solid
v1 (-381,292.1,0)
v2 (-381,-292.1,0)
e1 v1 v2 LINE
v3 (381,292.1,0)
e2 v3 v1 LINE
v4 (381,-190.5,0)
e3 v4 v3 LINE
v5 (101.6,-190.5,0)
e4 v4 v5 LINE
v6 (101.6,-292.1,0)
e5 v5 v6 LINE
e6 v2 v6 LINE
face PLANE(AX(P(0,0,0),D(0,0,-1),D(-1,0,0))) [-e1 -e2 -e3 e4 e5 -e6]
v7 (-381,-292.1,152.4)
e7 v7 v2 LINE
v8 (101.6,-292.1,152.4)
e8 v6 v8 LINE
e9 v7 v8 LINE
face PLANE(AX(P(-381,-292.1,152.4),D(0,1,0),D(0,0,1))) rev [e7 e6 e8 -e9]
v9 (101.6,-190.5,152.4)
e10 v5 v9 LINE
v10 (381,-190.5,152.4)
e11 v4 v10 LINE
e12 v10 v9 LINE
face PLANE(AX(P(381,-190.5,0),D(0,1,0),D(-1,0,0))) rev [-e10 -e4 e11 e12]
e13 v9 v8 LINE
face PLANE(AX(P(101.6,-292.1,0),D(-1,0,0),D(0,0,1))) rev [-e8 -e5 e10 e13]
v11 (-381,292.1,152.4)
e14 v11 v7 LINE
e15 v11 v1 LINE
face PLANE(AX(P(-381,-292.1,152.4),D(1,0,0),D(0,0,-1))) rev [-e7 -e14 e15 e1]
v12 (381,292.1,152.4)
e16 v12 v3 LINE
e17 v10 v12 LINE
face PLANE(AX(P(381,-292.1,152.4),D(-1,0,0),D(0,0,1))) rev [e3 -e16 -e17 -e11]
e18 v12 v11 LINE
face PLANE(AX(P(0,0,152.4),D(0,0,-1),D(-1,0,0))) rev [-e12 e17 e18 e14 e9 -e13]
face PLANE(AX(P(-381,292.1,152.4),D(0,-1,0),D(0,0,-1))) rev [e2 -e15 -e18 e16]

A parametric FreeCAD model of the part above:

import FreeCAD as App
import Part
import Sketcher

V = App.Vector
Q = App.Units.Quantity


def add_polygon(sketch, points):
    """Adds a closed chain of lines whose ends are joined by coincident constraints."""
    first, n = sketch.GeometryCount, len(points)
    for a, b in zip(points, points[1:] + points[:1]):
        sketch.addGeometry(Part.LineSegment(App.Vector(*a, 0), App.Vector(*b, 0)), False)
    for i in range(n):
        sketch.addConstraint(Sketcher.Constraint("Coincident", first + i, 2, first + (i + 1) % n, 1))

doc = App.newDocument("Part")
body = doc.addObject("PartDesign::Body", "Body")

sketch1 = body.newObject("Sketcher::SketchObject", "Sketch")
sketch1.AttachmentSupport = (doc.getObject("XY_Plane"), [""])
sketch1.MapMode = "FlatFace"
add_polygon(sketch1, [(-381, 292.1), (-381, -292.1), (381, -292.1), (381, 292.1)])
sketch1.addConstraint([
    Sketcher.Constraint("Vertical", 0),
    Sketcher.Constraint("Horizontal", 1),
    Sketcher.Constraint("Vertical", 2),
    Sketcher.Constraint("Horizontal", 3),
    Sketcher.Constraint("Symmetric", 0, 2, 2, 2, -1, 1),
    Sketcher.Constraint("DistanceX", 1, 1, 1, 2, Q("30 in")),
    Sketcher.Constraint("DistanceY", 0, 2, 0, 1, Q("23 in")),
])
pad1 = body.newObject("PartDesign::Pad", "Pad")
pad1.Profile = sketch1
pad1.Length = Q("6 in")

sketch2 = body.newObject("Sketcher::SketchObject", "Sketch001")
sketch2.AttachmentSupport = (doc.getObject("XY_Plane"), [""])
sketch2.MapMode = "FlatFace"
sketch2.AttachmentOffset = App.Placement(V(0, 0, 6 * 25.4), App.Rotation())
add_polygon(sketch2, [(101.6, -190.5), (101.6, -292.1), (381, -292.1), (381, -190.5)])
sketch2.addConstraint([
    Sketcher.Constraint("Vertical", 0),
    Sketcher.Constraint("Horizontal", 1),
    Sketcher.Constraint("Vertical", 2),
    Sketcher.Constraint("Horizontal", 3),
    Sketcher.Constraint("DistanceX", 1, 1, 1, 2, Q("11 in")),
    Sketcher.Constraint("DistanceY", 0, 2, 0, 1, Q("4 in")),
    Sketcher.Constraint("DistanceX", -1, 1, 0, 2, Q("4 in")),
    Sketcher.Constraint("DistanceY", 0, 2, -1, 1, Q("11.5 in")),
])
pocket1 = body.newObject("PartDesign::Pocket", "Pocket")
pocket1.Profile = sketch2
pocket1.Length = Q("6 in")

doc.recompute()
